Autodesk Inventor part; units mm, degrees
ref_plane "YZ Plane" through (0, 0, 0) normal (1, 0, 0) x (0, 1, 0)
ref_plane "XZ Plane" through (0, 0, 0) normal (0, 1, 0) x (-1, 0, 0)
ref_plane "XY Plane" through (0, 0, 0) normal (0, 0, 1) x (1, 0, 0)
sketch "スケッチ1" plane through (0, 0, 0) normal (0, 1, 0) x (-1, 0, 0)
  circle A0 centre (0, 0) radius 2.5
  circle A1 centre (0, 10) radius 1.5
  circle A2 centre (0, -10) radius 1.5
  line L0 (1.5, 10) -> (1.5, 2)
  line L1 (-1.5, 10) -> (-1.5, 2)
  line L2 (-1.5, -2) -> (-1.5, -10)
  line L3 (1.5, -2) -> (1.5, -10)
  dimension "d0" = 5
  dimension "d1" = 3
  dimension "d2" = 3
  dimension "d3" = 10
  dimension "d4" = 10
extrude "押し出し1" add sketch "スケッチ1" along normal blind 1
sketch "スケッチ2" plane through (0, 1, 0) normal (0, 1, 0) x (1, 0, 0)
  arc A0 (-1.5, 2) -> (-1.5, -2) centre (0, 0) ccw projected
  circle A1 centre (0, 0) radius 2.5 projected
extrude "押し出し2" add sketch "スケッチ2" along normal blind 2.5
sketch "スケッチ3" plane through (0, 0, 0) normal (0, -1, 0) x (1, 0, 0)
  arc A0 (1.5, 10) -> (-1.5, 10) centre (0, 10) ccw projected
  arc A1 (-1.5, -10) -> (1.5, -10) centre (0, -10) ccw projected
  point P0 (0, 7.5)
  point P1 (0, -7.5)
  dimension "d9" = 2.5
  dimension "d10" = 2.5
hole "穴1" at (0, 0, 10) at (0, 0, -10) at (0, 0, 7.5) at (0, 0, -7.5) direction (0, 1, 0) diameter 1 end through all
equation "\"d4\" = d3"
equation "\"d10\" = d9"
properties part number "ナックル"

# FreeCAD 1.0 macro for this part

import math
import FreeCAD as App
import Part
import Sketcher
from FreeCAD import Vector
Q = App.Units.Quantity

doc = App.newDocument("Part")
body = doc.addObject("PartDesign::Body", "Body")

sketch1 = doc.addObject("Sketcher::SketchObject", "Sketch")
body.addObject(sketch1)
sketch1.AttachmentSupport = (doc.XZ_Plane, [""])
sketch1.MapMode = "FlatFace"
sketch1.addGeometry(Part.ArcOfCircle(Part.Circle(Vector(0, 0, 0), Vector(0, 0, 1), 2.5), math.radians(127), math.radians(233)), False)
sketch1.addGeometry(Part.LineSegment(Vector(-1.5, 2, 0), Vector(-1.5, 10, 0)), False)
sketch1.addGeometry(Part.ArcOfCircle(Part.Circle(Vector(0, 10, 0), Vector(0, 0, 1), 1.5), math.radians(0), math.radians(180)), False)
sketch1.addGeometry(Part.LineSegment(Vector(1.5, 10, 0), Vector(1.5, 2, 0)), False)
sketch1.addGeometry(Part.ArcOfCircle(Part.Circle(Vector(0, 0, 0), Vector(0, 0, 1), 2.5), math.radians(-53), math.radians(53)), False)
sketch1.addGeometry(Part.LineSegment(Vector(1.5, -2, 0), Vector(1.5, -10, 0)), False)
sketch1.addGeometry(Part.ArcOfCircle(Part.Circle(Vector(0, -10, 0), Vector(0, 0, 1), 1.5), math.radians(180), math.radians(360)), False)
sketch1.addGeometry(Part.LineSegment(Vector(-1.5, -10, 0), Vector(-1.5, -2, 0)), False)
sketch1.addConstraint(Sketcher.Constraint("Coincident", 0, 1, 1, 1))
sketch1.addConstraint(Sketcher.Constraint("Tangent", 1, 2, 2, 2))
sketch1.addConstraint(Sketcher.Constraint("Tangent", 2, 1, 3, 1))
sketch1.addConstraint(Sketcher.Constraint("Coincident", 3, 2, 4, 2))
sketch1.addConstraint(Sketcher.Constraint("Coincident", 4, 1, 5, 1))
sketch1.addConstraint(Sketcher.Constraint("Tangent", 5, 2, 6, 2))
sketch1.addConstraint(Sketcher.Constraint("Tangent", 6, 1, 7, 1))
sketch1.addConstraint(Sketcher.Constraint("Coincident", 7, 2, 0, 2))
sketch1.addConstraint(Sketcher.Constraint("Vertical", 1))
sketch1.addConstraint(Sketcher.Constraint("Vertical", 3))
sketch1.addConstraint(Sketcher.Constraint("Vertical", 5))
sketch1.addConstraint(Sketcher.Constraint("Vertical", 7))
sketch1.addConstraint(Sketcher.Constraint("Coincident", 0, 3, -1, 1))
sketch1.addConstraint(Sketcher.Constraint("Coincident", 4, 3, -1, 1))
sketch1.addConstraint(Sketcher.Constraint("Equal", 0, 4))
sketch1.addConstraint(Sketcher.Constraint("Equal", 2, 6))
sketch1.addConstraint(Sketcher.Constraint("Symmetric", 2, 3, 6, 3, -1, 1))
sketch1.addConstraint(Sketcher.Constraint("PointOnObject", 2, 3, -2))
sketch1.addConstraint(Sketcher.Constraint("Radius", 0, Q("2.5 mm")))
sketch1.addConstraint(Sketcher.Constraint("Radius", 2, Q("1.5 mm")))
sketch1.addConstraint(Sketcher.Constraint("DistanceY", -1, 1, 2, 3, Q("10 mm")))
pad1 = doc.addObject("PartDesign::Pad", "Pad")
body.addObject(pad1)
pad1.Profile = sketch1
pad1.Length = 1
pad1.Reversed = True

sketch2 = doc.addObject("Sketcher::SketchObject", "Sketch001")
body.addObject(sketch2)
sketch2.AttachmentSupport = (doc.XZ_Plane, [""])
sketch2.MapMode = "FlatFace"
sketch2.AttachmentOffset = App.Placement(Vector(0, 0, -1), App.Rotation())
sketch2.addGeometry(Part.Circle(Vector(0, 0, 0), Vector(0, 0, 1), 2.5), False)
sketch2.addConstraint(Sketcher.Constraint("Coincident", 0, 3, -1, 1))
sketch2.addConstraint(Sketcher.Constraint("Diameter", 0, Q("5 mm")))
pad2 = doc.addObject("PartDesign::Pad", "Pad001")
body.addObject(pad2)
pad2.Profile = sketch2
pad2.Length = 2.5
pad2.Reversed = True

sketch3 = doc.addObject("Sketcher::SketchObject", "Sketch002")
body.addObject(sketch3)
sketch3.AttachmentSupport = (doc.XZ_Plane, [""])
sketch3.MapMode = "FlatFace"
sketch3.addGeometry(Part.Circle(Vector(0, 10, 0), Vector(0, 0, 1), 0.5), False)
sketch3.addGeometry(Part.Circle(Vector(0, -10, 0), Vector(0, 0, 1), 0.5), False)
sketch3.addGeometry(Part.Circle(Vector(0, 7.5, 0), Vector(0, 0, 1), 0.5), False)
sketch3.addGeometry(Part.Circle(Vector(0, -7.5, 0), Vector(0, 0, 1), 0.5), False)
sketch3.addConstraint(Sketcher.Constraint("Equal", 0, 1))
sketch3.addConstraint(Sketcher.Constraint("Equal", 1, 2))
sketch3.addConstraint(Sketcher.Constraint("Equal", 2, 3))
sketch3.addConstraint(Sketcher.Constraint("Symmetric", 0, 3, 1, 3, -1, 1))
sketch3.addConstraint(Sketcher.Constraint("Symmetric", 2, 3, 3, 3, -1, 1))
sketch3.addConstraint(Sketcher.Constraint("PointOnObject", 0, 3, -2))
sketch3.addConstraint(Sketcher.Constraint("PointOnObject", 2, 3, -2))
sketch3.addConstraint(Sketcher.Constraint("Diameter", 0, Q("1 mm")))
sketch3.addConstraint(Sketcher.Constraint("DistanceY", -1, 1, 0, 3, Q("10 mm")))
sketch3.addConstraint(Sketcher.Constraint("DistanceY", 3, 3, 2, 3, Q("15 mm")))
doc.recompute()
hole = doc.addObject("PartDesign::Hole", "Hole")
body.addObject(hole)
hole.Profile = sketch3
hole.ThreadType = "None"
hole.Diameter = 1
hole.DepthType = "ThroughAll"

doc.recompute()
